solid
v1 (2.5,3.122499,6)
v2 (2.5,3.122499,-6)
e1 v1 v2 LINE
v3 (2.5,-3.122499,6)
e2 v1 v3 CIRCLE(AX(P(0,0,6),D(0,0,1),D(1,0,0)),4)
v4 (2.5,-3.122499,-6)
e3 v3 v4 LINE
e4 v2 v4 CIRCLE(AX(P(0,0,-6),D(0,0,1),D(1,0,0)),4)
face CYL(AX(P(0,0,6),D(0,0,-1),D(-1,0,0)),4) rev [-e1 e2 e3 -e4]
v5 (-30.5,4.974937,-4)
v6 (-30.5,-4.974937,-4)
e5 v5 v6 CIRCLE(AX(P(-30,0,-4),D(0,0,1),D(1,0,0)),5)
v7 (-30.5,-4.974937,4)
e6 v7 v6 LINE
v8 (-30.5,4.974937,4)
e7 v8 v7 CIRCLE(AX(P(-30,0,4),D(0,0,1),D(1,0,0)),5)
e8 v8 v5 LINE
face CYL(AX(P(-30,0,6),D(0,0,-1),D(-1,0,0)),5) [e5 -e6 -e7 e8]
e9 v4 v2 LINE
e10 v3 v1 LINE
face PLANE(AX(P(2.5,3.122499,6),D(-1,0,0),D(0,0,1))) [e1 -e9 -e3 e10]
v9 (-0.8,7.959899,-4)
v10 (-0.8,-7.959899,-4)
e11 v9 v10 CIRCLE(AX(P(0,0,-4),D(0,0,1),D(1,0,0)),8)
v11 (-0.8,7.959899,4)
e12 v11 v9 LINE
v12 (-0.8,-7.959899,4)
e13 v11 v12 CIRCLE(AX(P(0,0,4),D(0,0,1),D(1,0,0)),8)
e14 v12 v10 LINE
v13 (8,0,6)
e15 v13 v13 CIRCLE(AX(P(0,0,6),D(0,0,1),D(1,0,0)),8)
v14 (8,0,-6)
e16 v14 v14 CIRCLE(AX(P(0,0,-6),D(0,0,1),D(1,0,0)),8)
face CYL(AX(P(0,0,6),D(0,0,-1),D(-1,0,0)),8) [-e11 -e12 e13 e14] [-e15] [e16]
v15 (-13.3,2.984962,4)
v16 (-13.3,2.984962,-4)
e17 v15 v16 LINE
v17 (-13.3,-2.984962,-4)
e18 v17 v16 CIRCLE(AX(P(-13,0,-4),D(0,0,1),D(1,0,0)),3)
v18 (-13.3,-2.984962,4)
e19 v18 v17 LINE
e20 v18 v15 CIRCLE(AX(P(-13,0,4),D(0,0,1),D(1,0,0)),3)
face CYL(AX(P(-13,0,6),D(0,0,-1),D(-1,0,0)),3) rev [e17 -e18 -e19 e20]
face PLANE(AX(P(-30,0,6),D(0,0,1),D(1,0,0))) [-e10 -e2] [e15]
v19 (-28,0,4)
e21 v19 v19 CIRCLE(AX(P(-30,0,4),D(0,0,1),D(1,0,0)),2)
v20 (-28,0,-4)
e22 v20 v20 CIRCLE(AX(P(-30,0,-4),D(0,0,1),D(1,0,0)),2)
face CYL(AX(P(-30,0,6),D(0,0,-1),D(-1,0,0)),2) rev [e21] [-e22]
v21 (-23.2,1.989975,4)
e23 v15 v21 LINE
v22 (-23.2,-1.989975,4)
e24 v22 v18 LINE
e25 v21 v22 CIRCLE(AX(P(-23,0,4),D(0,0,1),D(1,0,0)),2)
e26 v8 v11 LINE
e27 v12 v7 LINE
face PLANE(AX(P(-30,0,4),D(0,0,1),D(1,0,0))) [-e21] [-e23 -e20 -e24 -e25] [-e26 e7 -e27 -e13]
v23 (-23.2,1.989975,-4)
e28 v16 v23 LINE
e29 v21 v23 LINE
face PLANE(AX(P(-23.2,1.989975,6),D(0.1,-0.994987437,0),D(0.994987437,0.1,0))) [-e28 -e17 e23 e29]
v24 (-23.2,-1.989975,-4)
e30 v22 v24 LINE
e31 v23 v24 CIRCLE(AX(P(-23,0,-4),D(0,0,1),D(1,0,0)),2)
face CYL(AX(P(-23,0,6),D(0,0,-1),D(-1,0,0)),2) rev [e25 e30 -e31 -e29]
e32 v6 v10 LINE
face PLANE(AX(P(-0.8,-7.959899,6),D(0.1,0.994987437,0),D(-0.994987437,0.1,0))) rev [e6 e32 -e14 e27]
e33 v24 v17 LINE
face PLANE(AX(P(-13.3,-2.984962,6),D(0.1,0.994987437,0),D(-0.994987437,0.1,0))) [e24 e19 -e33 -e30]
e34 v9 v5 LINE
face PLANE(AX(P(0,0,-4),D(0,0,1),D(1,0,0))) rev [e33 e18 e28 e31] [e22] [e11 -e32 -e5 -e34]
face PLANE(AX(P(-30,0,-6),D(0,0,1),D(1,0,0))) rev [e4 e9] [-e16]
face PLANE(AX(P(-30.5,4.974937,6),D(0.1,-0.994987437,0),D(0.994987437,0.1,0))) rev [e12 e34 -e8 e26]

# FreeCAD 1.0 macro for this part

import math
import FreeCAD as App
import Part
import Sketcher

V = App.Vector
Q = App.Units.Quantity

doc = App.newDocument("Part")
params = doc.addObject("Spreadsheet::Sheet", "Params")
for row, (alias, value) in enumerate([
    ("sketch1_diameter", "4 mm"),
    ("sketch1_radius", "5 mm"),
    ("sketch1_radius2", "8 mm"),
    ("sketch1_radius3", "4 mm"),
    ("sketch1_radius4", "3 mm"),
    ("pad1_length", "12 mm"),
    ("sketch2_radius", "8 mm"),
    ("sketch2_radius2", "5 mm"),
    ("pocket1_length", "2 mm"),
    ("sketch3_radius", "8 mm"),
    ("sketch3_radius2", "5 mm"),
    ("pocket2_length", "2 mm"),
], start=1):
    params.set(f"A{row}", alias)
    params.set(f"B{row}", "=" + value)
    params.setAlias(f"B{row}", alias)

body = doc.addObject("PartDesign::Body", "Body")

# Sketch on XY plane
sketch1 = body.newObject("Sketcher::SketchObject", "Sketch")
sketch1.AttachmentSupport = (doc.getObject("XY_Plane"), [""])
sketch1.MapMode = "FlatFace"
sketch1.addGeometry([
    Part.LineSegment(V(-0.8, 7.959899, 0), V(-30.5, 4.974937, 0)),  # 0
    Part.ArcOfCircle(Part.Circle(V(-30, 0, 0), V(0, 0, 1), 5), math.radians(95.73917), math.radians(264.26083)),  # 1
    Part.LineSegment(V(-30.5, -4.974937, 0), V(-0.8, -7.959899, 0)),  # 2
    Part.ArcOfCircle(Part.Circle(V(0, 0, 0), V(0, 0, 1), 8), math.radians(-95.73917), math.radians(95.73917)),  # 3
    Part.LineSegment(V(2.5, 3.122499, 0), V(2.5, -3.122499, 0)),  # 4
    Part.ArcOfCircle(Part.Circle(V(0, 0, 0), V(0, 0, 1), 4), math.radians(51.317813), math.radians(308.682187)),  # 5
    Part.LineSegment(V(-23.2, 1.989975, 0), V(-13.3, 2.984962, 0)),  # 6
    Part.ArcOfCircle(Part.Circle(V(-13, 0, 0), V(0, 0, 1), 3), math.radians(-95.73917), math.radians(95.73917)),  # 7
    Part.LineSegment(V(-13.3, -2.984962, 0), V(-23.2, -1.989975, 0)),  # 8
    Part.ArcOfCircle(Part.Circle(V(-23, 0, 0), V(0, 0, 1), 2), math.radians(95.73917), math.radians(264.26083)),  # 9
    Part.Circle(V(-30, 0, 0), V(0, 0, 1), 2),  # 10
], False)
sketch1.addConstraint([
    Sketcher.Constraint("Tangent", 0, 2, 1, 1),
    Sketcher.Constraint("Tangent", 1, 2, 2, 1),
    Sketcher.Constraint("Tangent", 2, 2, 3, 1),
    Sketcher.Constraint("Tangent", 3, 2, 0, 1),
    Sketcher.Constraint("Coincident", 4, 1, 5, 1),
    Sketcher.Constraint("Coincident", 5, 2, 4, 2),
    Sketcher.Constraint("Tangent", 6, 2, 7, 2),
    Sketcher.Constraint("Tangent", 7, 1, 8, 1),
    Sketcher.Constraint("Tangent", 8, 2, 9, 2),
    Sketcher.Constraint("Tangent", 9, 1, 6, 1),
    Sketcher.Constraint("Vertical", 4),
    Sketcher.Constraint("Coincident", 3, 3, -1, 1),
    Sketcher.Constraint("Coincident", 5, 3, -1, 1),
    Sketcher.Constraint("Coincident", 10, 3, 1, 3),
    Sketcher.Constraint("Equal", 9, 10),
    Sketcher.Constraint("Symmetric", 6, 2, 7, 1, -1),
    Sketcher.Constraint("PointOnObject", 1, 3, -1),
    Sketcher.Constraint("Parallel", 0, 6),
    Sketcher.Constraint("Diameter", 10, Q("4 mm")),
    Sketcher.Constraint("Radius", 1, Q("5 mm")),
    Sketcher.Constraint("Radius", 3, Q("8 mm")),
    Sketcher.Constraint("Radius", 5, Q("4 mm")),
    Sketcher.Constraint("Radius", 7, Q("3 mm")),
    Sketcher.Constraint("DistanceX", 1, 3, -1, 1, Q("30 mm")),
    Sketcher.Constraint("DistanceX", 7, 3, -1, 1, Q("13 mm")),
    Sketcher.Constraint("DistanceX", -1, 1, 4, 1, Q("2.5 mm")),
])
sketch1.setExpression("Constraints[18]", "Params.sketch1_diameter")
sketch1.setExpression("Constraints[19]", "Params.sketch1_radius")
sketch1.setExpression("Constraints[20]", "Params.sketch1_radius2")
sketch1.setExpression("Constraints[21]", "Params.sketch1_radius3")
sketch1.setExpression("Constraints[22]", "Params.sketch1_radius4")
pad1 = body.newObject("PartDesign::Pad", "Pad")
pad1.Profile = sketch1
pad1.setExpression("Length", "Params.pad1_length")
pad1.Midplane = True

# Sketch on XY plane
sketch2 = body.newObject("Sketcher::SketchObject", "Sketch001")
sketch2.AttachmentSupport = (doc.getObject("XY_Plane"), [""])
sketch2.MapMode = "FlatFace"
sketch2.AttachmentOffset = App.Placement(V(0, 0, -4), App.Rotation())
sketch2.addGeometry([
    Part.LineSegment(V(-30.5, -4.974937, 0), V(-0.8, -7.959899, 0)),
    Part.ArcOfCircle(Part.Circle(V(0, 0, 0), V(0, 0, 1), 8), math.radians(95.73917), math.radians(264.26083)),
    Part.LineSegment(V(-0.8, 7.959899, 0), V(-30.5, 4.974937, 0)),
    Part.ArcOfCircle(Part.Circle(V(-30, 0, 0), V(0, 0, 1), 5), math.radians(95.73917), math.radians(264.26083)),
], False)
sketch2.addConstraint([
    Sketcher.Constraint("Tangent", 0, 2, 1, 2),
    Sketcher.Constraint("Tangent", 1, 1, 2, 1),
    Sketcher.Constraint("Tangent", 2, 2, 3, 1),
    Sketcher.Constraint("Tangent", 3, 2, 0, 1),
    Sketcher.Constraint("Coincident", 1, 3, -1, 1),
    Sketcher.Constraint("PointOnObject", 3, 3, -1),
    Sketcher.Constraint("Radius", 1, Q("8 mm")),
    Sketcher.Constraint("Radius", 3, Q("5 mm")),
    Sketcher.Constraint("DistanceX", 3, 3, -1, 1, Q("30 mm")),
])
sketch2.setExpression("Constraints[6]", "Params.sketch2_radius")
sketch2.setExpression("Constraints[7]", "Params.sketch2_radius2")
pocket1 = body.newObject("PartDesign::Pocket", "Pocket")
pocket1.Profile = sketch2
pocket1.setExpression("Length", "Params.pocket1_length")

# Sketch on XY plane
sketch3 = body.newObject("Sketcher::SketchObject", "Sketch002")
sketch3.AttachmentSupport = (doc.getObject("XY_Plane"), [""])
sketch3.MapMode = "FlatFace"
sketch3.AttachmentOffset = App.Placement(V(0, 0, 6), App.Rotation())
sketch3.addGeometry([
    Part.LineSegment(V(-30.5, -4.974937, 0), V(-0.8, -7.959899, 0)),
    Part.ArcOfCircle(Part.Circle(V(0, 0, 0), V(0, 0, 1), 8), math.radians(95.73917), math.radians(264.26083)),
    Part.LineSegment(V(-0.8, 7.959899, 0), V(-30.5, 4.974937, 0)),
    Part.ArcOfCircle(Part.Circle(V(-30, 0, 0), V(0, 0, 1), 5), math.radians(95.73917), math.radians(264.26083)),
], False)
sketch3.addConstraint([
    Sketcher.Constraint("Tangent", 0, 2, 1, 2),
    Sketcher.Constraint("Tangent", 1, 1, 2, 1),
    Sketcher.Constraint("Tangent", 2, 2, 3, 1),
    Sketcher.Constraint("Tangent", 3, 2, 0, 1),
    Sketcher.Constraint("Coincident", 1, 3, -1, 1),
    Sketcher.Constraint("PointOnObject", 3, 3, -1),
    Sketcher.Constraint("Radius", 1, Q("8 mm")),
    Sketcher.Constraint("Radius", 3, Q("5 mm")),
    Sketcher.Constraint("DistanceX", 3, 3, -1, 1, Q("30 mm")),
])
sketch3.setExpression("Constraints[6]", "Params.sketch3_radius")
sketch3.setExpression("Constraints[7]", "Params.sketch3_radius2")
pocket2 = body.newObject("PartDesign::Pocket", "Pocket001")
pocket2.Profile = sketch3
pocket2.setExpression("Length", "Params.pocket2_length")

doc.recompute()
